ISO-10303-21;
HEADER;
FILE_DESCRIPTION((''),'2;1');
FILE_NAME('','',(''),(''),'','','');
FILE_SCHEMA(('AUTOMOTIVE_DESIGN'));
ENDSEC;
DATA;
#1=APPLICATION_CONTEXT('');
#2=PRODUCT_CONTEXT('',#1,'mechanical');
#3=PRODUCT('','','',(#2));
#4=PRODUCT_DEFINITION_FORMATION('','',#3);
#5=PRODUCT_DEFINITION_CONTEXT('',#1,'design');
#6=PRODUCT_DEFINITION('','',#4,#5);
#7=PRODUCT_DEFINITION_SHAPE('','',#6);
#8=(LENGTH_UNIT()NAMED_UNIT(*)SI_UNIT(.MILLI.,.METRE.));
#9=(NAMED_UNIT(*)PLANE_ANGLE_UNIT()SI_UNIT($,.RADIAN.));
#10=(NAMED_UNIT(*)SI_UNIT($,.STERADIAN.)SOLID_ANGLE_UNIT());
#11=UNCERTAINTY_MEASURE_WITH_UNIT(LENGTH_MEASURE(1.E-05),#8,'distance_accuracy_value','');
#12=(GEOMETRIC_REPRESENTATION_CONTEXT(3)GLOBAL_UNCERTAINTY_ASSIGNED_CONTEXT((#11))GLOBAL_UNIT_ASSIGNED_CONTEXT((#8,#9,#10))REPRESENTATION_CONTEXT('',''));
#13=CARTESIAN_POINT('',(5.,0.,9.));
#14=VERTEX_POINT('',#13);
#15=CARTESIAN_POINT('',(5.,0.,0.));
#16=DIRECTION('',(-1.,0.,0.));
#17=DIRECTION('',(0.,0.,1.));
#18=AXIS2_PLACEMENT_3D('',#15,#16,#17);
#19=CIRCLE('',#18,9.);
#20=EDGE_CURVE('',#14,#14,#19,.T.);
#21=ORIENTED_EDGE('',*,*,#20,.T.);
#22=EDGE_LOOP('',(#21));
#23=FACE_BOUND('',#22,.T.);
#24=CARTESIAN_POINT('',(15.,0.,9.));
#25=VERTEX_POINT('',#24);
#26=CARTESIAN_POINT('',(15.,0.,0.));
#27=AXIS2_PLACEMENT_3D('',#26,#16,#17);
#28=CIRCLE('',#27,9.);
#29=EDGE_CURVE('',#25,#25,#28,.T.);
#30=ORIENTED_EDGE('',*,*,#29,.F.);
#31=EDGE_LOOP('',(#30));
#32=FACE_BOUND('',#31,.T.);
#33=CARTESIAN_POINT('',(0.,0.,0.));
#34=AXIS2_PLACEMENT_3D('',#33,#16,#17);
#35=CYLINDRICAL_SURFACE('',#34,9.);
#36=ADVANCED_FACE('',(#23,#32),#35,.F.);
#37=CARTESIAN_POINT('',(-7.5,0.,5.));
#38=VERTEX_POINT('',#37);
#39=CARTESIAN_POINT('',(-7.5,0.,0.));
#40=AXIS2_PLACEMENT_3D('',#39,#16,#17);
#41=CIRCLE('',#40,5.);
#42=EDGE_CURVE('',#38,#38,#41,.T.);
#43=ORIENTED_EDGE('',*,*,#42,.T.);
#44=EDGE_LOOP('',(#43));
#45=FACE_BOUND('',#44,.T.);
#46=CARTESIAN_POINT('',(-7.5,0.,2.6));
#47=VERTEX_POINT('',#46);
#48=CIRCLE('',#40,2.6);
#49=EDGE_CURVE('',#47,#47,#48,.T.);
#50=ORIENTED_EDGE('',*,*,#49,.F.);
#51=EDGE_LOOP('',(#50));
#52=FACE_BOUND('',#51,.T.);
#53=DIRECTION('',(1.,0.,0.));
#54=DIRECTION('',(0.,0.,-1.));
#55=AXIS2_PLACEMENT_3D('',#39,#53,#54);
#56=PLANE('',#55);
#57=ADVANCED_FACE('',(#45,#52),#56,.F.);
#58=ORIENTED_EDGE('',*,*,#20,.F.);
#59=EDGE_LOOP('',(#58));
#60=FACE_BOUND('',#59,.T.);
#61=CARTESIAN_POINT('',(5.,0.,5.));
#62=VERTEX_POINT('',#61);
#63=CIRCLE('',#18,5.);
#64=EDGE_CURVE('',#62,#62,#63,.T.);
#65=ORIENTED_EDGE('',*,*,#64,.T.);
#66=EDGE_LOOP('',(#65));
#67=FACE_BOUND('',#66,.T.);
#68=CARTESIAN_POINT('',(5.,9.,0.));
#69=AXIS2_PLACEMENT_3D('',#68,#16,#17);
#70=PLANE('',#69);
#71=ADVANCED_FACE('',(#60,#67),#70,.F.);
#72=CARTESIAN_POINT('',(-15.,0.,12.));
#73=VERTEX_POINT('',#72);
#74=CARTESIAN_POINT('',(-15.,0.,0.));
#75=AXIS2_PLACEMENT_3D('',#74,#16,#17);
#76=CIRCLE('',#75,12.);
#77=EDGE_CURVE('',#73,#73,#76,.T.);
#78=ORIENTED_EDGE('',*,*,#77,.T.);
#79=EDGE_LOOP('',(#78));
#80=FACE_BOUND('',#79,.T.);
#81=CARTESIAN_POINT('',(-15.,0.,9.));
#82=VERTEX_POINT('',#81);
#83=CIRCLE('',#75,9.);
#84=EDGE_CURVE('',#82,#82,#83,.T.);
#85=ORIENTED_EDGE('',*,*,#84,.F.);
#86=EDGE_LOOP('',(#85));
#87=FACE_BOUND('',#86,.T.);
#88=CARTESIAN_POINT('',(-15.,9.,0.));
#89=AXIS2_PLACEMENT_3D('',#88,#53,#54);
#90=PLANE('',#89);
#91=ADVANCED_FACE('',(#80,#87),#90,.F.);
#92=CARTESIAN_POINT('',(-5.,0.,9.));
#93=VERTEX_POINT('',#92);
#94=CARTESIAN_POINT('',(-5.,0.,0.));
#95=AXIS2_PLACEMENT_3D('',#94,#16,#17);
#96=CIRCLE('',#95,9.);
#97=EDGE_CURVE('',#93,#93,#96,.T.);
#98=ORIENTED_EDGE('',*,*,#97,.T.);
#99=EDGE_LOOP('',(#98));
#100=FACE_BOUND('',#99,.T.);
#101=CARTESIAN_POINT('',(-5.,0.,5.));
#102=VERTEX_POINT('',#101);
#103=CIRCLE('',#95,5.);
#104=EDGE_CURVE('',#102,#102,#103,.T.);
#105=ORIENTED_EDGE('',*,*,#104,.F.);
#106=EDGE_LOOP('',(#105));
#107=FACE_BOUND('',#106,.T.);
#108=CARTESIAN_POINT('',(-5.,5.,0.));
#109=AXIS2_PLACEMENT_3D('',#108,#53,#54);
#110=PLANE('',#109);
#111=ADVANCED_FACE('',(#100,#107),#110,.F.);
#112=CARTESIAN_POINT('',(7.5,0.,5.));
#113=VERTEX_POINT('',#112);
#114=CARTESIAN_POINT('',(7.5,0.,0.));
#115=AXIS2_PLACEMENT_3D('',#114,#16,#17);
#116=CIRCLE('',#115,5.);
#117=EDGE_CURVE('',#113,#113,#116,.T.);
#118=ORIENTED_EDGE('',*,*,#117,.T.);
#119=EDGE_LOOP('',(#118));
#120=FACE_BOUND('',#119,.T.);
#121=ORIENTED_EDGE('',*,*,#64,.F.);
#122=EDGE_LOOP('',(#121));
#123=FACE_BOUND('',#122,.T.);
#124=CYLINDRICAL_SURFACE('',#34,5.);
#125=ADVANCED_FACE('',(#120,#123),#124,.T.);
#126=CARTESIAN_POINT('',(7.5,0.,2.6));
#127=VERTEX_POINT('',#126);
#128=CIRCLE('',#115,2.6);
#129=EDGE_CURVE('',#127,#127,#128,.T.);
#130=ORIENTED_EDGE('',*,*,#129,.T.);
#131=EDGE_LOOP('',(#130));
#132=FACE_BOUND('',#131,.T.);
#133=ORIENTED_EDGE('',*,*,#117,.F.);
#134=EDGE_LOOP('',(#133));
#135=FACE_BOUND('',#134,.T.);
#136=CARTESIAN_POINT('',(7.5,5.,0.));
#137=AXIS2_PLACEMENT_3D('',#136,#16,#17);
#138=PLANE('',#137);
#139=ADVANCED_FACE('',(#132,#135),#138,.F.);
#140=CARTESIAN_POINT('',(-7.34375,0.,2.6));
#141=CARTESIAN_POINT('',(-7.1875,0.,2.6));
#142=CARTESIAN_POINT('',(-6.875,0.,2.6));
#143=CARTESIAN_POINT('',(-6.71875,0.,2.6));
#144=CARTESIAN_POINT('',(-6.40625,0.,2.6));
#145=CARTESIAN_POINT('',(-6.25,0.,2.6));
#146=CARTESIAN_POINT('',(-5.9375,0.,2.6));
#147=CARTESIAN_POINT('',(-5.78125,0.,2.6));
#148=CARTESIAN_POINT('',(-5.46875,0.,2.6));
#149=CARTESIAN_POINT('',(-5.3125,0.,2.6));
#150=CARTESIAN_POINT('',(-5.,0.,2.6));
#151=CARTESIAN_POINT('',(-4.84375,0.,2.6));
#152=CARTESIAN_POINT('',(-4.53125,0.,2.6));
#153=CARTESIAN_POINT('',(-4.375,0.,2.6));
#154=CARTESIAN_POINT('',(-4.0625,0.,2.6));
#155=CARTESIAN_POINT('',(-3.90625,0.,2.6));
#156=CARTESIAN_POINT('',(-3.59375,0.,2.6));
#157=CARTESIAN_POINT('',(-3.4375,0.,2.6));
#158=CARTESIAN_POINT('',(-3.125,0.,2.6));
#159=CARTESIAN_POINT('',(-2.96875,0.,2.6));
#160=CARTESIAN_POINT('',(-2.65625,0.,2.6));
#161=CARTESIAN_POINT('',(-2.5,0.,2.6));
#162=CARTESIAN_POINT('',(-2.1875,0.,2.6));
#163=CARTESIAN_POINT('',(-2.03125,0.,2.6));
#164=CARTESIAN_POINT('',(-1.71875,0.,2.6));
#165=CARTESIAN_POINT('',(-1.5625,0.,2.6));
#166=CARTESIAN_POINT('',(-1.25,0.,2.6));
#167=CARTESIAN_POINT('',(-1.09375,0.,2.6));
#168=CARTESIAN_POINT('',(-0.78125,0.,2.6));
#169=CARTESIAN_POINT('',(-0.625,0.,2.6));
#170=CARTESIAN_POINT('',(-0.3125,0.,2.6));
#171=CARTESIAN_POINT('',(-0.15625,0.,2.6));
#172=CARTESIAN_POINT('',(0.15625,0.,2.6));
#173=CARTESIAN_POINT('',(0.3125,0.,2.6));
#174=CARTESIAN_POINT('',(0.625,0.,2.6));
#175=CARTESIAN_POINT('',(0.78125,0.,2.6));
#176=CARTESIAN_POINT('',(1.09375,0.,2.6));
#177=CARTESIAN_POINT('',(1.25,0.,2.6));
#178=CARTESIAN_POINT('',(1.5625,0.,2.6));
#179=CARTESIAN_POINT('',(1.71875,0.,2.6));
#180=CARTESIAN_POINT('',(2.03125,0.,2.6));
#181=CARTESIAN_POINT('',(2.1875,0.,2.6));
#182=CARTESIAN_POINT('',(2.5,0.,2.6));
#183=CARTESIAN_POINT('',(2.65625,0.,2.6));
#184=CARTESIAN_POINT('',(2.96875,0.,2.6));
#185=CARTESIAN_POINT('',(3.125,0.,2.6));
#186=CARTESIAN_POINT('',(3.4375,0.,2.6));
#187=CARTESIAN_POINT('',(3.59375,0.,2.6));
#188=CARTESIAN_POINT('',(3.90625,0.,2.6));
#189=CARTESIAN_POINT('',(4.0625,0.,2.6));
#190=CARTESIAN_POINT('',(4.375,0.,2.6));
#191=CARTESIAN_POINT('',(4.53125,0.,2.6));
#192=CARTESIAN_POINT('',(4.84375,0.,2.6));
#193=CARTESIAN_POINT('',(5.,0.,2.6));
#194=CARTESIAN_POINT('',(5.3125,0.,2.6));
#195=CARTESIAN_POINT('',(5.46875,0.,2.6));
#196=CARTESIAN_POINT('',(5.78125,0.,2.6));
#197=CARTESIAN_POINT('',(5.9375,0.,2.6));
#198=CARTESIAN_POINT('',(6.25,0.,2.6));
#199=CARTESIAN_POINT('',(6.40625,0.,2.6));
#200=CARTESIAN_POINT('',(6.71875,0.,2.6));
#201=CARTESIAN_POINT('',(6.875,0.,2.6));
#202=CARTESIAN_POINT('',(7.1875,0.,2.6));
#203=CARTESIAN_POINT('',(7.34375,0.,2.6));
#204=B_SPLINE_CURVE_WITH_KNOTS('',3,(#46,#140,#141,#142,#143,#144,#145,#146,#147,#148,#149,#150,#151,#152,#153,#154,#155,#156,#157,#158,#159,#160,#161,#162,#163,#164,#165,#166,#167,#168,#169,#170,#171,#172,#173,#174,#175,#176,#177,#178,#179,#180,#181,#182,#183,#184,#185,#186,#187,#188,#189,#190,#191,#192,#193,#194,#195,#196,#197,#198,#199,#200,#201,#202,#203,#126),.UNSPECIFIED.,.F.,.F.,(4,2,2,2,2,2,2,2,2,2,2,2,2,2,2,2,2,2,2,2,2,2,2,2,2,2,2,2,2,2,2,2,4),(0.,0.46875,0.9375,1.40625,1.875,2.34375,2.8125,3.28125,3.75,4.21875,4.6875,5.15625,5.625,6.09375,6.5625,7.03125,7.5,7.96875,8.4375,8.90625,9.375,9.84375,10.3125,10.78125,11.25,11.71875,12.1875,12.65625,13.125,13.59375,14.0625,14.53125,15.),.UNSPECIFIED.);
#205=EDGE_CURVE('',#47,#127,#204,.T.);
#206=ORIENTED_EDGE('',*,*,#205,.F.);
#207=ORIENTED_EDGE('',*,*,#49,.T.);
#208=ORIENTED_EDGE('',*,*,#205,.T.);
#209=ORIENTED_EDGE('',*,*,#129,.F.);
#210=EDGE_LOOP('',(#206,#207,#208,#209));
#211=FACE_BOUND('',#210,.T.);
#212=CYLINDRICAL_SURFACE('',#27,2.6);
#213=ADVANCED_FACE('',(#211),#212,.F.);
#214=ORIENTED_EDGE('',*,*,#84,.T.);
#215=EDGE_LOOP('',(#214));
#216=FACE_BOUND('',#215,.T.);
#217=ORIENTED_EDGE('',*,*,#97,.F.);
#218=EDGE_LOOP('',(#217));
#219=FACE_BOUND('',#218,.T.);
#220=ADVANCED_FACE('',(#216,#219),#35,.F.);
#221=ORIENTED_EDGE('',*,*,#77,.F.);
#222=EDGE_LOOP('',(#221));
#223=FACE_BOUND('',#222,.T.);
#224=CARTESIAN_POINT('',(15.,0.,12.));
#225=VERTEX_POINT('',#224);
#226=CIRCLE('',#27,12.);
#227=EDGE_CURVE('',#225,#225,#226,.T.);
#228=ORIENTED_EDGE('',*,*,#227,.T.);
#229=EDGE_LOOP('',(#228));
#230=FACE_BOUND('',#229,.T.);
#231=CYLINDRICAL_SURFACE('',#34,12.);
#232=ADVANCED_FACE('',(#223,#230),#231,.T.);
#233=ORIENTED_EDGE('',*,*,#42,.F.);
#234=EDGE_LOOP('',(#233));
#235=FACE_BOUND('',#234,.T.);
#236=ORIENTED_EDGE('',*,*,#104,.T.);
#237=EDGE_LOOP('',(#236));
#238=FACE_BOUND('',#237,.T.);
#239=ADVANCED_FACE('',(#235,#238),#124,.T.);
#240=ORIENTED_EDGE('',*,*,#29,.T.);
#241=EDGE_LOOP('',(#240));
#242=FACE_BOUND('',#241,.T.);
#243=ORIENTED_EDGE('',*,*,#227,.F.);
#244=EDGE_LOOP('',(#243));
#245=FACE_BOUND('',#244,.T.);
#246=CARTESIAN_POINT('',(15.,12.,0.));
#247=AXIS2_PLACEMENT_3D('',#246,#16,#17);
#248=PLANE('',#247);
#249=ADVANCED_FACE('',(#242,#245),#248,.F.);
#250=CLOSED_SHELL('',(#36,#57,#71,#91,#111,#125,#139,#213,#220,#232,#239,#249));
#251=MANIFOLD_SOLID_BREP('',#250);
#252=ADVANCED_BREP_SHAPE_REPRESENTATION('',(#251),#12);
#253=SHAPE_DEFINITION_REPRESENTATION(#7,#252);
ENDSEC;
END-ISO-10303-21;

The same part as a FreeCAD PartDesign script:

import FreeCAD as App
import Part
import Sketcher

V = App.Vector

doc = App.newDocument("Part")
params = doc.addObject("Spreadsheet::Sheet", "Params")
for row, (alias, value) in enumerate([
    ("sketch1_width", "15 mm"),
    ("sketch1_width2", "10 mm"),
    ("sketch1_width3", "30 mm"),
    ("sketch1_height", "5 mm"),
    ("sketch1_height2", "4 mm"),
    ("revolution_angle", "360 deg"),
    ("sketch2_diameter", "5.2 mm"),
], start=1):
    params.set(f"A{row}", alias)
    params.set(f"B{row}", "=" + value)
    params.setAlias(f"B{row}", alias)

body = doc.addObject("PartDesign::Body", "Body")

sketch1 = doc.addObject("Sketcher::SketchObject", "Sketch")
body.addObject(sketch1)
sketch1.AttachmentSupport = (doc.XY_Plane, [""])
sketch1.MapMode = "FlatFace"
sketch1.addGeometry(Part.LineSegment(V(-7.5, 5, 0), V(-7.5, 0, 0)), False)
sketch1.addGeometry(Part.LineSegment(V(-7.5, 0, 0), V(7.5, 0, 0)), False)
sketch1.addGeometry(Part.LineSegment(V(7.5, 0, 0), V(7.5, 5, 0)), False)
sketch1.addGeometry(Part.LineSegment(V(7.5, 5, 0), V(5, 5, 0)), False)
sketch1.addGeometry(Part.LineSegment(V(5, 5, 0), V(5, 9, 0)), False)
sketch1.addGeometry(Part.LineSegment(V(5, 9, 0), V(15, 9, 0)), False)
sketch1.addGeometry(Part.LineSegment(V(15, 9, 0), V(15, 12, 0)), False)
sketch1.addGeometry(Part.LineSegment(V(15, 12, 0), V(-15, 12, 0)), False)
sketch1.addGeometry(Part.LineSegment(V(-15, 12, 0), V(-15, 9, 0)), False)
sketch1.addGeometry(Part.LineSegment(V(-15, 9, 0), V(-5, 9, 0)), False)
sketch1.addGeometry(Part.LineSegment(V(-5, 9, 0), V(-5, 5, 0)), False)
sketch1.addGeometry(Part.LineSegment(V(-5, 5, 0), V(-7.5, 5, 0)), False)
sketch1.addConstraint(Sketcher.Constraint("Coincident", 0, 2, 1, 1))
sketch1.addConstraint(Sketcher.Constraint("Coincident", 1, 2, 2, 1))
sketch1.addConstraint(Sketcher.Constraint("Coincident", 2, 2, 3, 1))
sketch1.addConstraint(Sketcher.Constraint("Coincident", 3, 2, 4, 1))
sketch1.addConstraint(Sketcher.Constraint("Coincident", 4, 2, 5, 1))
sketch1.addConstraint(Sketcher.Constraint("Coincident", 5, 2, 6, 1))
sketch1.addConstraint(Sketcher.Constraint("Coincident", 6, 2, 7, 1))
sketch1.addConstraint(Sketcher.Constraint("Coincident", 7, 2, 8, 1))
sketch1.addConstraint(Sketcher.Constraint("Coincident", 8, 2, 9, 1))
sketch1.addConstraint(Sketcher.Constraint("Coincident", 9, 2, 10, 1))
sketch1.addConstraint(Sketcher.Constraint("Coincident", 10, 2, 11, 1))
sketch1.addConstraint(Sketcher.Constraint("Coincident", 11, 2, 0, 1))
sketch1.addConstraint(Sketcher.Constraint("Vertical", 0))
sketch1.addConstraint(Sketcher.Constraint("Horizontal", 1))
sketch1.addConstraint(Sketcher.Constraint("Vertical", 2))
sketch1.addConstraint(Sketcher.Constraint("Horizontal", 3))
sketch1.addConstraint(Sketcher.Constraint("Vertical", 4))
sketch1.addConstraint(Sketcher.Constraint("Horizontal", 5))
sketch1.addConstraint(Sketcher.Constraint("Vertical", 6))
sketch1.addConstraint(Sketcher.Constraint("Horizontal", 7))
sketch1.addConstraint(Sketcher.Constraint("Vertical", 8))
sketch1.addConstraint(Sketcher.Constraint("Horizontal", 9))
sketch1.addConstraint(Sketcher.Constraint("Vertical", 10))
sketch1.addConstraint(Sketcher.Constraint("Horizontal", 11))
sketch1.addConstraint(Sketcher.Constraint("Symmetric", 0, 2, 1, 2, -1, 1))
sketch1.addConstraint(Sketcher.Constraint("Symmetric", 5, 2, 8, 2, -2))
sketch1.addConstraint(Sketcher.Constraint("Symmetric", 3, 2, 10, 2, -2))
sketch1.addConstraint(Sketcher.Constraint("DistanceX", 1, 1, 1, 2, 15.0))
sketch1.addConstraint(Sketcher.Constraint("DistanceX", 5, 1, 5, 2, 10.0))
sketch1.addConstraint(Sketcher.Constraint("DistanceX", 7, 2, 7, 1, 30.0))
sketch1.addConstraint(Sketcher.Constraint("DistanceY", 0, 2, 0, 1, 5.0))
sketch1.addConstraint(Sketcher.Constraint("DistanceY", 4, 1, 4, 2, 4.0))
sketch1.addConstraint(Sketcher.Constraint("DistanceY", 6, 1, 6, 2, 3.0))
sketch1.setExpression("Constraints[27]", "Params.sketch1_width")
sketch1.setExpression("Constraints[28]", "Params.sketch1_width2")
sketch1.setExpression("Constraints[29]", "Params.sketch1_width3")
sketch1.setExpression("Constraints[30]", "Params.sketch1_height")
sketch1.setExpression("Constraints[31]", "Params.sketch1_height2")
revolution = doc.addObject("PartDesign::Revolution", "Revolution")
body.addObject(revolution)
revolution.Profile = sketch1
revolution.ReferenceAxis = (sketch1, ["H_Axis"])
revolution.setExpression("Angle", "Params.revolution_angle")

sketch2 = doc.addObject("Sketcher::SketchObject", "Sketch001")
body.addObject(sketch2)
sketch2.AttachmentSupport = (doc.YZ_Plane, [""])
sketch2.MapMode = "FlatFace"
sketch2.AttachmentOffset = App.Placement(V(0, 0, -7.5), App.Rotation())
sketch2.addGeometry(Part.Circle(V(0, 0, 0), V(0, 0, 1), 2.6), False)
sketch2.addConstraint(Sketcher.Constraint("Coincident", 0, 3, -1, 1))
sketch2.addConstraint(Sketcher.Constraint("Diameter", 0, 5.2))
sketch2.setExpression("Constraints[1]", "Params.sketch2_diameter")
pocket1 = doc.addObject("PartDesign::Pocket", "Pocket")
body.addObject(pocket1)
pocket1.Profile = sketch2
pocket1.Type = "ThroughAll"
pocket1.Reversed = True

doc.recompute()
